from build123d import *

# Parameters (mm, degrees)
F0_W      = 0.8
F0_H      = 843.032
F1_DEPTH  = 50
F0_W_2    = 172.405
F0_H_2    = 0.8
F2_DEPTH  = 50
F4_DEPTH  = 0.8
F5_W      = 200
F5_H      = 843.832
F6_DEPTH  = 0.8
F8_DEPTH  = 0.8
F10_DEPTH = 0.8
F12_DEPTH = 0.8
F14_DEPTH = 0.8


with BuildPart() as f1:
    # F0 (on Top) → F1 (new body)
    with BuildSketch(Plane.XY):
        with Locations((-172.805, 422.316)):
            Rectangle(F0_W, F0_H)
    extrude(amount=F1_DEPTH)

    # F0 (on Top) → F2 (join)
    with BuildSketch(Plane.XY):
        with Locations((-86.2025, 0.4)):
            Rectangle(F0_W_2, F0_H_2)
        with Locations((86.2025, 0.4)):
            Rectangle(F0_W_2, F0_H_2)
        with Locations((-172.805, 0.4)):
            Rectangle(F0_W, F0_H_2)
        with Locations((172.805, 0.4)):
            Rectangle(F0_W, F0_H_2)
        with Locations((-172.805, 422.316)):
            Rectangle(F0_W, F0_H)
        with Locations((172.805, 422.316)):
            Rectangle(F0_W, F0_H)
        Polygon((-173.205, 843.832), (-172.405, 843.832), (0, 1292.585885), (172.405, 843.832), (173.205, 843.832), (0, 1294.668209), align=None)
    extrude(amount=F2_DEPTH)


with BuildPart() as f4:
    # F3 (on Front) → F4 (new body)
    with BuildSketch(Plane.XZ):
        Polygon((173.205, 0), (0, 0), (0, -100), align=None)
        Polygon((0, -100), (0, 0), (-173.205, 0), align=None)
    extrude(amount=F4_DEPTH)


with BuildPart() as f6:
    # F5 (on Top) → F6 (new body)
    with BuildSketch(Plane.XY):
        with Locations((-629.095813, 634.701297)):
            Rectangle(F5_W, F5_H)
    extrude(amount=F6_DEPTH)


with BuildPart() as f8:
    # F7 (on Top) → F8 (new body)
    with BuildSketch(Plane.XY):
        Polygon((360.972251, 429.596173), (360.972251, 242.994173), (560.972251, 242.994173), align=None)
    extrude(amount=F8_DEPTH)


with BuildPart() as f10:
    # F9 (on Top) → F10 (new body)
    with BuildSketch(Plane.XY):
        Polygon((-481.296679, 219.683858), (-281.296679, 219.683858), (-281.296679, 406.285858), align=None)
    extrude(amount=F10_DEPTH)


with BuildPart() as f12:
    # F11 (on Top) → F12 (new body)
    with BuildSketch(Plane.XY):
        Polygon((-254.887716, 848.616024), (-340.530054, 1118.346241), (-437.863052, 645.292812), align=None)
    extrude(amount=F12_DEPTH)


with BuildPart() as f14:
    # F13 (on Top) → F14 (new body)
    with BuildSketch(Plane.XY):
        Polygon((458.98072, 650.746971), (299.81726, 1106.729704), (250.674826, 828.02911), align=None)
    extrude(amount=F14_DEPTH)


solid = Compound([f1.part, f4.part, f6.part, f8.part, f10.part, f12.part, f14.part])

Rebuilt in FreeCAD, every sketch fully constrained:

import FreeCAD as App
import Part
import Sketcher
from FreeCAD import Vector
Q = App.Units.Quantity


def add_polygon(sketch, points):
    """Adds a closed chain of lines whose ends are joined by coincident constraints."""
    first, n = sketch.GeometryCount, len(points)
    for a, b in zip(points, points[1:] + points[:1]):
        sketch.addGeometry(Part.LineSegment(App.Vector(*a, 0), App.Vector(*b, 0)), False)
    for i in range(n):
        sketch.addConstraint(Sketcher.Constraint("Coincident", first + i, 2, first + (i + 1) % n, 1))

doc = App.newDocument("Part")
body = doc.addObject("PartDesign::Body", "Body")

# Sketch on XY plane
sketch1 = doc.addObject("Sketcher::SketchObject", "Sketch")
body.addObject(sketch1)
sketch1.AttachmentSupport = (doc.XY_Plane, [""])
sketch1.MapMode = "FlatFace"
add_polygon(sketch1, [(-173.2, 843.8), (-173.2, 0.8), (-172.4, 0.8), (-172.4, 843.8)])  # lines 0-3
sketch1.addConstraint([
    Sketcher.Constraint("Vertical", 0),
    Sketcher.Constraint("Horizontal", 1),
    Sketcher.Constraint("Vertical", 2),
    Sketcher.Constraint("Horizontal", 3),
    Sketcher.Constraint("DistanceX", 1, 1, 1, 2, Q("0.8 mm")),
    Sketcher.Constraint("DistanceY", -1, 1, 0, 2, Q("0.8 mm")),
    Sketcher.Constraint("DistanceY", 0, 2, 0, 1, Q("843.032 mm")),
    Sketcher.Constraint("DistanceX", 0, 2, -1, 1, Q("173.205 mm")),
])
pad1 = doc.addObject("PartDesign::Pad", "Pad")
body.addObject(pad1)
pad1.Profile = sketch1
pad1.Length = 50

# Sketch on XY plane
sketch2 = doc.addObject("Sketcher::SketchObject", "Sketch001")
body.addObject(sketch2)
sketch2.AttachmentSupport = (doc.XY_Plane, [""])
sketch2.MapMode = "FlatFace"
add_polygon(sketch2, [(-173, 0), (173, 0), (173, 844), (0, 1295), (-173, 844)])  # lines 0-4
add_polygon(sketch2, [(172, 844), (172, 1), (-172, 1), (-172, 844), (0, 1293)])  # lines 5-9
sketch2.addConstraint([
    Sketcher.Constraint("Horizontal", 0),
    Sketcher.Constraint("Vertical", 1),
    Sketcher.Constraint("Vertical", 4),
    Sketcher.Constraint("Vertical", 5),
    Sketcher.Constraint("Horizontal", 6),
    Sketcher.Constraint("Vertical", 7),
    Sketcher.Constraint("Symmetric", 0, 2, 4, 2, -1, 1),
    Sketcher.Constraint("Symmetric", 7, 2, 9, 2, -2),
    Sketcher.Constraint("PointOnObject", 2, 2, -2),
    Sketcher.Constraint("PointOnObject", 8, 2, -2),
    Sketcher.Constraint("Parallel", 3, 8),
    Sketcher.Constraint("Parallel", 2, 9),
    Sketcher.Constraint("Horizontal", 3, 2, 7, 2),
    Sketcher.Constraint("DistanceX", 0, 1, 0, 2, Q("346.41 mm")),
    Sketcher.Constraint("DistanceX", 6, 2, 6, 1, Q("344.81 mm")),
    Sketcher.Constraint("DistanceY", -1, 1, 5, 2, Q("0.8 mm")),
    Sketcher.Constraint("DistanceY", 1, 1, 1, 2, Q("843.832 mm")),
    Sketcher.Constraint("Distance", 2, Q("482.963 mm")),
])
pad2 = doc.addObject("PartDesign::Pad", "Pad001")
body.addObject(pad2)
pad2.Profile = sketch2
pad2.Length = 50
body2 = doc.addObject("PartDesign::Body", "Body001")

# Sketch on XZ plane
sketch3 = doc.addObject("Sketcher::SketchObject", "Sketch002")
body2.addObject(sketch3)
sketch3.AttachmentSupport = (doc.getObject("XZ_Plane001"), [""])
sketch3.MapMode = "FlatFace"
add_polygon(sketch3, [(173, 0), (-173, 0), (0, -100)])  # lines 0-2
sketch3.addConstraint([
    Sketcher.Constraint("Horizontal", 0),
    Sketcher.Constraint("Symmetric", 0, 2, 2, 2, -1, 1),
    Sketcher.Constraint("PointOnObject", 1, 2, -2),
    Sketcher.Constraint("Angle", 1, Q("-30.000012 deg")),
    Sketcher.Constraint("DistanceY", 1, 2, -1, 1, Q("100 mm")),
])
pad3 = doc.addObject("PartDesign::Pad", "Pad002")
body2.addObject(pad3)
pad3.Profile = sketch3
pad3.Length = 0.8
body3 = doc.addObject("PartDesign::Body", "Body002")

# Sketch on XY plane
sketch4 = doc.addObject("Sketcher::SketchObject", "Sketch003")
body3.addObject(sketch4)
sketch4.AttachmentSupport = (doc.getObject("XY_Plane002"), [""])
sketch4.MapMode = "FlatFace"
add_polygon(sketch4, [(-729, 1057), (-729, 213), (-529, 213), (-529, 1057)])  # lines 0-3
sketch4.addConstraint([
    Sketcher.Constraint("Vertical", 0),
    Sketcher.Constraint("Horizontal", 1),
    Sketcher.Constraint("Vertical", 2),
    Sketcher.Constraint("Horizontal", 3),
    Sketcher.Constraint("DistanceX", 1, 1, 1, 2, Q("200 mm")),
    Sketcher.Constraint("DistanceY", 0, 2, 0, 1, Q("843.832 mm")),
    Sketcher.Constraint("DistanceX", 0, 2, -1, 1, Q("729.095813 mm")),
    Sketcher.Constraint("DistanceY", -1, 1, 0, 2, Q("212.785297 mm")),
])
pad4 = doc.addObject("PartDesign::Pad", "Pad003")
body3.addObject(pad4)
pad4.Profile = sketch4
pad4.Length = 0.8
body4 = doc.addObject("PartDesign::Body", "Body003")

# Sketch on XY plane
sketch5 = doc.addObject("Sketcher::SketchObject", "Sketch004")
body4.addObject(sketch5)
sketch5.AttachmentSupport = (doc.getObject("XY_Plane003"), [""])
sketch5.MapMode = "FlatFace"
add_polygon(sketch5, [(361, 430), (361, 243), (561, 243)])  # lines 0-2
sketch5.addConstraint([
    Sketcher.Constraint("Vertical", 0),
    Sketcher.Constraint("Horizontal", 1),
    Sketcher.Constraint("DistanceX", 1, 1, 1, 2, Q("200 mm")),
    Sketcher.Constraint("DistanceY", 0, 2, 0, 1, Q("186.602 mm")),
    Sketcher.Constraint("DistanceX", -1, 1, 0, 2, Q("360.972251 mm")),
    Sketcher.Constraint("DistanceY", -1, 1, 0, 2, Q("242.994173 mm")),
])
pad5 = doc.addObject("PartDesign::Pad", "Pad004")
body4.addObject(pad5)
pad5.Profile = sketch5
pad5.Length = 0.8
body5 = doc.addObject("PartDesign::Body", "Body004")

# Sketch on XY plane
sketch6 = doc.addObject("Sketcher::SketchObject", "Sketch005")
body5.addObject(sketch6)
sketch6.AttachmentSupport = (doc.getObject("XY_Plane004"), [""])
sketch6.MapMode = "FlatFace"
add_polygon(sketch6, [(-481, 220), (-281, 220), (-281, 406)])  # lines 0-2
sketch6.addConstraint([
    Sketcher.Constraint("Horizontal", 0),
    Sketcher.Constraint("Vertical", 1),
    Sketcher.Constraint("DistanceX", 0, 1, 0, 2, Q("200 mm")),
    Sketcher.Constraint("DistanceY", 1, 1, 1, 2, Q("186.602 mm")),
    Sketcher.Constraint("DistanceX", 0, 2, -1, 1, Q("281.296679 mm")),
    Sketcher.Constraint("DistanceY", -1, 1, 1, 2, Q("406.285858 mm")),
])
pad6 = doc.addObject("PartDesign::Pad", "Pad005")
body5.addObject(pad6)
pad6.Profile = sketch6
pad6.Length = 0.8
body6 = doc.addObject("PartDesign::Body", "Body005")

# Sketch on XY plane
sketch7 = doc.addObject("Sketcher::SketchObject", "Sketch006")
body6.addObject(sketch7)
sketch7.AttachmentSupport = (doc.getObject("XY_Plane005"), [""])
sketch7.MapMode = "FlatFace"
add_polygon(sketch7, [(-255, 849), (-341, 1118), (-438, 645)])  # lines 0-2
sketch7.addConstraint([
    Sketcher.Constraint("Distance", 0, Q("283 mm")),
    Sketcher.Constraint("Distance", 1, Q("482.963 mm")),
    Sketcher.Constraint("Distance", 2, Q("273.533 mm")),
    Sketcher.Constraint("DistanceY", -1, 1, 0, 2, Q("1118.346241 mm")),
    Sketcher.Constraint("DistanceX", 1, 2, -1, 1, Q("437.863052 mm")),
    Sketcher.Constraint("DistanceY", -1, 1, 1, 2, Q("645.292812 mm")),
])
pad7 = doc.addObject("PartDesign::Pad", "Pad006")
body6.addObject(pad7)
pad7.Profile = sketch7
pad7.Length = 0.8
body7 = doc.addObject("PartDesign::Body", "Body006")

# Sketch on XY plane
sketch8 = doc.addObject("Sketcher::SketchObject", "Sketch007")
body7.addObject(sketch8)
sketch8.AttachmentSupport = (doc.getObject("XY_Plane006"), [""])
sketch8.MapMode = "FlatFace"
add_polygon(sketch8, [(459, 651), (300, 1107), (251, 828)])  # lines 0-2
sketch8.addConstraint([
    Sketcher.Constraint("Angle", 1, Q("-100 deg")),
    Sketcher.Constraint("Distance", 1, Q("283 mm")),
    Sketcher.Constraint("Angle", 2, Q("-40.399988 deg")),
    Sketcher.Constraint("Distance", 0, Q("482.963 mm")),
    Sketcher.Constraint("DistanceX", -1, 1, 0, 2, Q("299.81726 mm")),
    Sketcher.Constraint("DistanceY", -1, 1, 1, 2, Q("828.02911 mm")),
])
pad8 = doc.addObject("PartDesign::Pad", "Pad007")
body7.addObject(pad8)
pad8.Profile = sketch8
pad8.Length = 0.8

doc.recompute()
